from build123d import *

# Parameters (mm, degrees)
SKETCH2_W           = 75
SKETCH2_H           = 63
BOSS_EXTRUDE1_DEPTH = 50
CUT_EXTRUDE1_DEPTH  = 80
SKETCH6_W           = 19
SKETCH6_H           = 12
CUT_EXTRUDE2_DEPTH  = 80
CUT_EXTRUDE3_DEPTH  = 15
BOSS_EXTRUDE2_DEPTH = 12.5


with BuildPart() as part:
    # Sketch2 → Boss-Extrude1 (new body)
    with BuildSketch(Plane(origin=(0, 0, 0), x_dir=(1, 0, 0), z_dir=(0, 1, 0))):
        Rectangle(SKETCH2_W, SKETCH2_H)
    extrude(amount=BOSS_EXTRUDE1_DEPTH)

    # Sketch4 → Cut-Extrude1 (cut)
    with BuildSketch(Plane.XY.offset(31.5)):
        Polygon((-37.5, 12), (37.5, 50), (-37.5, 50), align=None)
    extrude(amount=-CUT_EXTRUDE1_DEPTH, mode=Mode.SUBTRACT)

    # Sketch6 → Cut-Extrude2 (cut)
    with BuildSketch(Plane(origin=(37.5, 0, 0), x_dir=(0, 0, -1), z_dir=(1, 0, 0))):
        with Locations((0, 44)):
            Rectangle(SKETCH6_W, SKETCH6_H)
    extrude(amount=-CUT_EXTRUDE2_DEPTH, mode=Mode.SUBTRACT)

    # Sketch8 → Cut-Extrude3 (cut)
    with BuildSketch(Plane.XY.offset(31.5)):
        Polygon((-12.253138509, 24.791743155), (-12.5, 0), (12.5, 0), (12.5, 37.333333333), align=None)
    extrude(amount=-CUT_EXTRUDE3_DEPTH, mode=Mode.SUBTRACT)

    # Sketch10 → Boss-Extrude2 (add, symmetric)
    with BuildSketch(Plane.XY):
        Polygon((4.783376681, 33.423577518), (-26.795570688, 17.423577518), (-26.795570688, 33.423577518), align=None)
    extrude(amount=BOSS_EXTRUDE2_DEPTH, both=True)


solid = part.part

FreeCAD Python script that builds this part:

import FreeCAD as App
import Part
import Sketcher
from FreeCAD import Vector

doc = App.newDocument("Part")
params = doc.addObject("Spreadsheet::Sheet", "Params")
for row, (alias, value) in enumerate([
    ("sketch1_width", "75 mm"),
    ("sketch1_height", "63 mm"),
    ("pad1_length", "50 mm"),
    ("sketch2_width", "75 mm"),
    ("sketch2_height", "38 mm"),
    ("pocket1_length", "80 mm"),
    ("sketch3_width", "12 mm"),
    ("sketch3_height", "19 mm"),
    ("pocket2_length", "80 mm"),
    ("sketch4_width", "25 mm"),
    ("pocket3_length", "15 mm"),
    ("sketch5_height", "16 mm"),
    ("pad2_length", "25 mm"),
], start=1):
    params.set(f"A{row}", alias)
    params.set(f"B{row}", "=" + value)
    params.setAlias(f"B{row}", alias)

body = doc.addObject("PartDesign::Body", "Body")

# Sketch on XZ plane
sketch1 = body.newObject("Sketcher::SketchObject", "Sketch")
sketch1.AttachmentSupport = (doc.getObject("XZ_Plane"), [""])
sketch1.MapMode = "FlatFace"
sketch1.addGeometry([
    Part.LineSegment(Vector(-37.5, -31.5, 0), Vector(-37.5, 31.5, 0)),
    Part.LineSegment(Vector(-37.5, 31.5, 0), Vector(37.5, 31.5, 0)),
    Part.LineSegment(Vector(37.5, 31.5, 0), Vector(37.5, -31.5, 0)),
    Part.LineSegment(Vector(37.5, -31.5, 0), Vector(-37.5, -31.5, 0)),
], False)
sketch1.addConstraint([
    Sketcher.Constraint("Coincident", 0, 2, 1, 1),
    Sketcher.Constraint("Coincident", 1, 2, 2, 1),
    Sketcher.Constraint("Coincident", 2, 2, 3, 1),
    Sketcher.Constraint("Coincident", 3, 2, 0, 1),
    Sketcher.Constraint("Vertical", 0),
    Sketcher.Constraint("Horizontal", 1),
    Sketcher.Constraint("Vertical", 2),
    Sketcher.Constraint("Horizontal", 3),
    Sketcher.Constraint("Symmetric", 0, 2, 2, 2, -1, 1),
    Sketcher.Constraint("DistanceX", 1, 1, 1, 2, 75.0),
    Sketcher.Constraint("DistanceY", 0, 1, 0, 2, 63.0),
])
sketch1.setExpression("Constraints[9]", "Params.sketch1_width")
sketch1.setExpression("Constraints[10]", "Params.sketch1_height")
pad1 = body.newObject("PartDesign::Pad", "Pad")
pad1.Profile = sketch1
pad1.setExpression("Length", "Params.pad1_length")
pad1.Reversed = True

# Sketch on XY plane
sketch2 = body.newObject("Sketcher::SketchObject", "Sketch001")
sketch2.AttachmentSupport = (doc.getObject("XY_Plane"), [""])
sketch2.MapMode = "FlatFace"
sketch2.AttachmentOffset = App.Placement(Vector(0, 0, 31.5), App.Rotation())
sketch2.addGeometry([
    Part.LineSegment(Vector(-37.5, 12, 0), Vector(37.5, 50, 0)),
    Part.LineSegment(Vector(37.5, 50, 0), Vector(-37.5, 50, 0)),
    Part.LineSegment(Vector(-37.5, 50, 0), Vector(-37.5, 12, 0)),
], False)
sketch2.addConstraint([
    Sketcher.Constraint("Coincident", 0, 2, 1, 1),
    Sketcher.Constraint("Coincident", 1, 2, 2, 1),
    Sketcher.Constraint("Coincident", 2, 2, 0, 1),
    Sketcher.Constraint("Horizontal", 1),
    Sketcher.Constraint("Vertical", 2),
    Sketcher.Constraint("DistanceX", 1, 2, 1, 1, 75.0),
    Sketcher.Constraint("DistanceY", 2, 2, 2, 1, 38.0),
    Sketcher.Constraint("DistanceY", -1, 1, 0, 2, 50.0),
    Sketcher.Constraint("DistanceX", -1, 1, 0, 2, 37.5),
])
sketch2.setExpression("Constraints[5]", "Params.sketch2_width")
sketch2.setExpression("Constraints[6]", "Params.sketch2_height")
pocket1 = body.newObject("PartDesign::Pocket", "Pocket")
pocket1.Profile = sketch2
pocket1.setExpression("Length", "Params.pocket1_length")

# Sketch on YZ plane
sketch3 = body.newObject("Sketcher::SketchObject", "Sketch002")
sketch3.AttachmentSupport = (doc.getObject("YZ_Plane"), [""])
sketch3.MapMode = "FlatFace"
sketch3.AttachmentOffset = App.Placement(Vector(0, 0, 37.5), App.Rotation())
sketch3.addGeometry([
    Part.LineSegment(Vector(50, 9.5, 0), Vector(38, 9.5, 0)),
    Part.LineSegment(Vector(38, 9.5, 0), Vector(38, -9.5, 0)),
    Part.LineSegment(Vector(38, -9.5, 0), Vector(50, -9.5, 0)),
    Part.LineSegment(Vector(50, -9.5, 0), Vector(50, 9.5, 0)),
], False)
sketch3.addConstraint([
    Sketcher.Constraint("Coincident", 0, 2, 1, 1),
    Sketcher.Constraint("Coincident", 1, 2, 2, 1),
    Sketcher.Constraint("Coincident", 2, 2, 3, 1),
    Sketcher.Constraint("Coincident", 3, 2, 0, 1),
    Sketcher.Constraint("Horizontal", 0),
    Sketcher.Constraint("Vertical", 1),
    Sketcher.Constraint("Horizontal", 2),
    Sketcher.Constraint("Vertical", 3),
    Sketcher.Constraint("DistanceX", 0, 2, 0, 1, 12.0),
    Sketcher.Constraint("DistanceY", 1, 2, 1, 1, 19.0),
    Sketcher.Constraint("DistanceX", -1, 1, 0, 2, 38.0),
    Sketcher.Constraint("DistanceY", -1, 1, 0, 2, 9.5),
])
sketch3.setExpression("Constraints[8]", "Params.sketch3_width")
sketch3.setExpression("Constraints[9]", "Params.sketch3_height")
pocket2 = body.newObject("PartDesign::Pocket", "Pocket001")
pocket2.Profile = sketch3
pocket2.setExpression("Length", "Params.pocket2_length")

# Sketch on XY plane
sketch4 = body.newObject("Sketcher::SketchObject", "Sketch003")
sketch4.AttachmentSupport = (doc.getObject("XY_Plane"), [""])
sketch4.MapMode = "FlatFace"
sketch4.AttachmentOffset = App.Placement(Vector(0, 0, 31.5), App.Rotation())
sketch4.addGeometry([
    Part.LineSegment(Vector(-12.253139, 24.791743, 0), Vector(-12.5, 0, 0)),
    Part.LineSegment(Vector(-12.5, 0, 0), Vector(12.5, 0, 0)),
    Part.LineSegment(Vector(12.5, 0, 0), Vector(12.5, 37.333333, 0)),
    Part.LineSegment(Vector(12.5, 37.333333, 0), Vector(-12.253139, 24.791743, 0)),
], False)
sketch4.addConstraint([
    Sketcher.Constraint("Coincident", 0, 2, 1, 1),
    Sketcher.Constraint("Coincident", 1, 2, 2, 1),
    Sketcher.Constraint("Coincident", 2, 2, 3, 1),
    Sketcher.Constraint("Coincident", 3, 2, 0, 1),
    Sketcher.Constraint("Horizontal", 1),
    Sketcher.Constraint("Vertical", 2),
    Sketcher.Constraint("Symmetric", 0, 2, 1, 2, -1, 1),
    Sketcher.Constraint("DistanceX", 1, 1, 1, 2, 25.0),
    Sketcher.Constraint("DistanceY", 2, 1, 2, 2, 37.333333),
    Sketcher.Constraint("DistanceX", 3, 2, -1, 1, 12.253139),
    Sketcher.Constraint("DistanceY", 3, 2, 2, 2, 12.54159),
])
sketch4.setExpression("Constraints[7]", "Params.sketch4_width")
pocket3 = body.newObject("PartDesign::Pocket", "Pocket002")
pocket3.Profile = sketch4
pocket3.setExpression("Length", "Params.pocket3_length")

# Sketch on XY plane
sketch5 = body.newObject("Sketcher::SketchObject", "Sketch004")
sketch5.AttachmentSupport = (doc.getObject("XY_Plane"), [""])
sketch5.MapMode = "FlatFace"
sketch5.addGeometry([
    Part.LineSegment(Vector(-26.795571, 17.423578, 0), Vector(4.783377, 33.423578, 0)),
    Part.LineSegment(Vector(4.783377, 33.423578, 0), Vector(-26.795571, 33.423578, 0)),
    Part.LineSegment(Vector(-26.795571, 33.423578, 0), Vector(-26.795571, 17.423578, 0)),
], False)
sketch5.addConstraint([
    Sketcher.Constraint("Coincident", 0, 2, 1, 1),
    Sketcher.Constraint("Coincident", 1, 2, 2, 1),
    Sketcher.Constraint("Coincident", 2, 2, 0, 1),
    Sketcher.Constraint("Horizontal", 1),
    Sketcher.Constraint("Vertical", 2),
    Sketcher.Constraint("DistanceY", 2, 2, 2, 1, 16.0),
    Sketcher.Constraint("DistanceX", 1, 2, 1, 1, 31.578947),
    Sketcher.Constraint("DistanceX", 1, 2, -1, 1, 26.795571),
    Sketcher.Constraint("DistanceY", -1, 1, 0, 2, 33.423578),
])
sketch5.setExpression("Constraints[5]", "Params.sketch5_height")
pad2 = body.newObject("PartDesign::Pad", "Pad001")
pad2.Profile = sketch5
pad2.setExpression("Length", "Params.pad2_length")
pad2.Midplane = True

doc.recompute()
